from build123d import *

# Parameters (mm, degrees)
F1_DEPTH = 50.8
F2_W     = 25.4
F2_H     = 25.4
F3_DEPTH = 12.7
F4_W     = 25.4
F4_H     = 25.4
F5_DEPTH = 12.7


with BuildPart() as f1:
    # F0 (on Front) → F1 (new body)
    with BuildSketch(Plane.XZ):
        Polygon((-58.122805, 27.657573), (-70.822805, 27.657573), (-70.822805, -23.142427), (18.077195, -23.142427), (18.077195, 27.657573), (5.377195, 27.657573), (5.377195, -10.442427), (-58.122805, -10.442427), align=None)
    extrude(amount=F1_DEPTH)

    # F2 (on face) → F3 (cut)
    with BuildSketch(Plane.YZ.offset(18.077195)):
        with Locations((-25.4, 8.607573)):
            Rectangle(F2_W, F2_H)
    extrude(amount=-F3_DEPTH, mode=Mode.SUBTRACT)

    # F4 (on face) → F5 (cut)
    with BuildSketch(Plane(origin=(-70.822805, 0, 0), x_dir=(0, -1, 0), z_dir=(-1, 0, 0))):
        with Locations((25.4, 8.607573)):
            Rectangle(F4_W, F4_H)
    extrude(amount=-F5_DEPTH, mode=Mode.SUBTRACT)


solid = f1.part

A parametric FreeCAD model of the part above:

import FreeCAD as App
import Part
import Sketcher

V = App.Vector
Q = App.Units.Quantity


def add_polygon(sketch, points):
    """Adds a closed chain of lines whose ends are joined by coincident constraints."""
    first, n = sketch.GeometryCount, len(points)
    for a, b in zip(points, points[1:] + points[:1]):
        sketch.addGeometry(Part.LineSegment(App.Vector(*a, 0), App.Vector(*b, 0)), False)
    for i in range(n):
        sketch.addConstraint(Sketcher.Constraint("Coincident", first + i, 2, first + (i + 1) % n, 1))

doc = App.newDocument("Part")
params = doc.addObject("Spreadsheet::Sheet", "Params")
for row, (alias, value) in enumerate([
    ("sketch1_height", "2 in"),
    ("sketch1_width", "0.5 in"),
    ("sketch1_width2", "3.5 in"),
    ("sketch1_height2", "1.5 in"),
    ("pad1_length", "2 in"),
    ("sketch2_width", "1 in"),
    ("pocket1_length", "0.5 in"),
    ("sketch3_width", "1 in"),
    ("pocket2_length", "0.5 in"),
], start=1):
    params.set(f"A{row}", alias)
    params.set(f"B{row}", "=" + value)
    params.setAlias(f"B{row}", alias)

body = doc.addObject("PartDesign::Body", "Body")

# Sketch on XZ plane
sketch1 = doc.addObject("Sketcher::SketchObject", "Sketch")
body.addObject(sketch1)
sketch1.AttachmentSupport = (doc.XZ_Plane, [""])
sketch1.MapMode = "FlatFace"
add_polygon(sketch1, [(-58, 28), (-71, 28), (-71, -23), (18, -23), (18, 28), (5, 28), (5, -10), (-58, -10)])  # lines 0-7
sketch1.addConstraint([
    Sketcher.Constraint("Horizontal", 0),
    Sketcher.Constraint("Vertical", 1),
    Sketcher.Constraint("Horizontal", 2),
    Sketcher.Constraint("Vertical", 3),
    Sketcher.Constraint("Horizontal", 4),
    Sketcher.Constraint("Vertical", 5),
    Sketcher.Constraint("Horizontal", 6),
    Sketcher.Constraint("Vertical", 7),
    Sketcher.Constraint("Horizontal", 0, 2, 3, 2),
    Sketcher.Constraint("Equal", 0, 4),
    Sketcher.Constraint("DistanceY", 1, 2, 1, 1, Q("2 in")),
    Sketcher.Constraint("DistanceX", 0, 2, 0, 1, Q("0.5 in")),
    Sketcher.Constraint("DistanceX", 2, 1, 2, 2, Q("3.5 in")),
    Sketcher.Constraint("DistanceY", 5, 2, 5, 1, Q("1.5 in")),
    Sketcher.Constraint("DistanceX", 0, 2, -1, 1, Q("70.822805 mm")),
    Sketcher.Constraint("DistanceY", -1, 1, 0, 2, Q("27.657573 mm")),
])
sketch1.setExpression("Constraints[18]", "Params.sketch1_height")
sketch1.setExpression("Constraints[19]", "Params.sketch1_width")
sketch1.setExpression("Constraints[20]", "Params.sketch1_width2")
sketch1.setExpression("Constraints[21]", "Params.sketch1_height2")
pad1 = doc.addObject("PartDesign::Pad", "Pad")
body.addObject(pad1)
pad1.Profile = sketch1
pad1.setExpression("Length", "Params.pad1_length")

# Sketch on YZ plane
sketch2 = doc.addObject("Sketcher::SketchObject", "Sketch001")
body.addObject(sketch2)
sketch2.AttachmentSupport = (doc.YZ_Plane, [""])
sketch2.MapMode = "FlatFace"
sketch2.AttachmentOffset = App.Placement(V(0, 0, 18.077195), App.Rotation())
add_polygon(sketch2, [(-38, 21), (-38, -4), (-13, -4), (-13, 21)])  # lines 0-3
sketch2.addConstraint([
    Sketcher.Constraint("Vertical", 0),
    Sketcher.Constraint("Horizontal", 1),
    Sketcher.Constraint("Vertical", 2),
    Sketcher.Constraint("Horizontal", 3),
    Sketcher.Constraint("Equal", 3, 0),
    Sketcher.Constraint("DistanceX", 1, 1, 1, 2, Q("1 in")),
    Sketcher.Constraint("DistanceX", 0, 2, -1, 1, Q("1.5 in")),
    Sketcher.Constraint("DistanceY", 0, 2, -1, 1, Q("4.092427 mm")),
])
sketch2.setExpression("Constraints[9]", "Params.sketch2_width")
pocket1 = doc.addObject("PartDesign::Pocket", "Pocket")
body.addObject(pocket1)
pocket1.Profile = sketch2
pocket1.setExpression("Length", "Params.pocket1_length")

# Sketch on YZ plane
sketch3 = doc.addObject("Sketcher::SketchObject", "Sketch002")
body.addObject(sketch3)
sketch3.AttachmentSupport = (doc.YZ_Plane, [""])
sketch3.MapMode = "FlatFace"
sketch3.AttachmentOffset = App.Placement(V(0, 0, -70.822805), App.Rotation())
add_polygon(sketch3, [(-13, 21), (-13, -4), (-38, -4), (-38, 21)])  # lines 0-3
sketch3.addConstraint([
    Sketcher.Constraint("Vertical", 0),
    Sketcher.Constraint("Horizontal", 1),
    Sketcher.Constraint("Vertical", 2),
    Sketcher.Constraint("Horizontal", 3),
    Sketcher.Constraint("Equal", 3, 0),
    Sketcher.Constraint("DistanceX", 1, 2, 1, 1, Q("1 in")),
    Sketcher.Constraint("DistanceX", 0, 2, -1, 1, Q("0.5 in")),
    Sketcher.Constraint("DistanceY", 0, 2, -1, 1, Q("4.092427 mm")),
])
sketch3.setExpression("Constraints[9]", "Params.sketch3_width")
pocket2 = doc.addObject("PartDesign::Pocket", "Pocket001")
body.addObject(pocket2)
pocket2.Profile = sketch3
pocket2.setExpression("Length", "Params.pocket2_length")
pocket2.Reversed = True

doc.recompute()
